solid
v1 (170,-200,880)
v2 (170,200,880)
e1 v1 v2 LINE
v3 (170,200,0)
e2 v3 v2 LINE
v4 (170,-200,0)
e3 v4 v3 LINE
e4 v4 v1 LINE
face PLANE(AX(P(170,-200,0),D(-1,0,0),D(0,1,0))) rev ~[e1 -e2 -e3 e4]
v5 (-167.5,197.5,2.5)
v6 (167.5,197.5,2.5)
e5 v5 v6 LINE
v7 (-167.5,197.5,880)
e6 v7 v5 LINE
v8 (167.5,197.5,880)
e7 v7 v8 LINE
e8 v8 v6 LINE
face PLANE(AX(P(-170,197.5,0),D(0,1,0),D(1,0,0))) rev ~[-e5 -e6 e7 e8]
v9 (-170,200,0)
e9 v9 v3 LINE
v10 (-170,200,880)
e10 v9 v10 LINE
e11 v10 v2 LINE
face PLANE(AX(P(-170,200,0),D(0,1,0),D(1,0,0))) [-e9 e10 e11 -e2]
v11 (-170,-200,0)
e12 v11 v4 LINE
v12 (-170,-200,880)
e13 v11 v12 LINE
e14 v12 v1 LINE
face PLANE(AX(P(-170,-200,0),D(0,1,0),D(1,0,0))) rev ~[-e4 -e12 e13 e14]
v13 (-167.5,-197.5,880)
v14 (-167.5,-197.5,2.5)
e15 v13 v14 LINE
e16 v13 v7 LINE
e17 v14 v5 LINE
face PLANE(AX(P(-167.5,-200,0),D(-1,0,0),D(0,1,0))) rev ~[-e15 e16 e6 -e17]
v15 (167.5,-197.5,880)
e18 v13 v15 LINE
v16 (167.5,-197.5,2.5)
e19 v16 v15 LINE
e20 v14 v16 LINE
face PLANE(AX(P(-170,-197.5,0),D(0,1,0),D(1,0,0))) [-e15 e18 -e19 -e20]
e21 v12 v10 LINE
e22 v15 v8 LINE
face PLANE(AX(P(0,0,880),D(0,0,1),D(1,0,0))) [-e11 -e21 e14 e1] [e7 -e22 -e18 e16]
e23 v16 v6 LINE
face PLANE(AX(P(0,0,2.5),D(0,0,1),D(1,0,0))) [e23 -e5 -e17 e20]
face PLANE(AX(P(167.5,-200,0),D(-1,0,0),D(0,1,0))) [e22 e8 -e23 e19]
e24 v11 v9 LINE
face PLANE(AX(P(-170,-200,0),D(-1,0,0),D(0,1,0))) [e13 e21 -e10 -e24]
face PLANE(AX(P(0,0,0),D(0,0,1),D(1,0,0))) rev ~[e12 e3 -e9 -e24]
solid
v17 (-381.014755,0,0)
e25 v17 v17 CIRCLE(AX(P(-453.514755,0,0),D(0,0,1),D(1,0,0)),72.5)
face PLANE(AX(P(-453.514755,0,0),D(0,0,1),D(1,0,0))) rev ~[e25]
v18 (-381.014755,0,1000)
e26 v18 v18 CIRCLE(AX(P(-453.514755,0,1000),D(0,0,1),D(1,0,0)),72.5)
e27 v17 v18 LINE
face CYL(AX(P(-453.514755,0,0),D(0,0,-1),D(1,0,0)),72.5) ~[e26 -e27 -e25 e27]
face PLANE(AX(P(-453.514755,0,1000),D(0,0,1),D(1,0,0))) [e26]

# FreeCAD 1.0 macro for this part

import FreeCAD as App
import Part
import Sketcher
from FreeCAD import Vector


def faces_at(feature, points):
    """Names of the faces that lie closest to the given points."""
    faces = feature.Shape.Faces
    near = lambda p: min(range(len(faces)), key=lambda i: faces[i].distToShape(Part.Vertex(*p))[0])
    return sorted({f"Face{near(p) + 1}" for p in points})


def add_polygon(sketch, points):
    """Adds a closed chain of lines whose ends are joined by coincident constraints."""
    first, n = sketch.GeometryCount, len(points)
    for a, b in zip(points, points[1:] + points[:1]):
        sketch.addGeometry(Part.LineSegment(App.Vector(*a, 0), App.Vector(*b, 0)), False)
    for i in range(n):
        sketch.addConstraint(Sketcher.Constraint("Coincident", first + i, 2, first + (i + 1) % n, 1))

doc = App.newDocument("Part")
params = doc.addObject("Spreadsheet::Sheet", "Params")
for row, (alias, value) in enumerate([
    ("sketch1_width", "340 mm"),
    ("sketch1_height", "400 mm"),
    ("pad1_length", "880 mm"),
    ("thickness_wall", "2.5 mm"),
    ("sketch2_diameter", "145 mm"),
    ("pad2_length", "1000 mm"),
], start=1):
    params.set(f"A{row}", alias)
    params.set(f"B{row}", "=" + value)
    params.setAlias(f"B{row}", alias)

body = doc.addObject("PartDesign::Body", "Body")

# Sketch on XY plane
sketch1 = body.newObject("Sketcher::SketchObject", "Sketch")
sketch1.AttachmentSupport = (doc.getObject("XY_Plane"), [""])
sketch1.MapMode = "FlatFace"
add_polygon(sketch1, [(-170, 200), (-170, -200), (170, -200), (170, 200)])  # lines 0-3
sketch1.addConstraint([
    Sketcher.Constraint("Vertical", 0),
    Sketcher.Constraint("Horizontal", 1),
    Sketcher.Constraint("Vertical", 2),
    Sketcher.Constraint("Horizontal", 3),
    Sketcher.Constraint("Symmetric", 0, 2, 2, 2, -1, 1),
    Sketcher.Constraint("DistanceX", 1, 1, 1, 2, 340.0),
    Sketcher.Constraint("DistanceY", 0, 2, 0, 1, 400.0),
])
sketch1.setExpression("Constraints[9]", "Params.sketch1_width")
sketch1.setExpression("Constraints[10]", "Params.sketch1_height")
pad1 = body.newObject("PartDesign::Pad", "Pad")
pad1.Profile = sketch1
pad1.setExpression("Length", "Params.pad1_length")
doc.recompute()

thickness = body.newObject("PartDesign::Thickness", "Thickness")
thickness.Base = (pad1, faces_at(pad1, [(0, 0, 880)]))
thickness.setExpression("Value", "Params.thickness_wall")
thickness.Reversed = True
thickness.Join = "Arc"
body2 = doc.addObject("PartDesign::Body", "Body001")

# Sketch on XY plane
sketch2 = body2.newObject("Sketcher::SketchObject", "Sketch001")
sketch2.AttachmentSupport = (doc.getObject("XY_Plane001"), [""])
sketch2.MapMode = "FlatFace"
sketch2.addGeometry(Part.Circle(Vector(-453.514755, 0, 0), Vector(0, 0, 1), 72.5), False)
sketch2.addConstraint([
    Sketcher.Constraint("PointOnObject", 0, 3, -1),
    Sketcher.Constraint("Diameter", 0, 145.0),
    Sketcher.Constraint("DistanceX", 0, 3, -1, 1, 453.514755),
])
sketch2.setExpression("Constraints[1]", "Params.sketch2_diameter")
pad2 = body2.newObject("PartDesign::Pad", "Pad001")
pad2.Profile = sketch2
pad2.setExpression("Length", "Params.pad2_length")

doc.recompute()
